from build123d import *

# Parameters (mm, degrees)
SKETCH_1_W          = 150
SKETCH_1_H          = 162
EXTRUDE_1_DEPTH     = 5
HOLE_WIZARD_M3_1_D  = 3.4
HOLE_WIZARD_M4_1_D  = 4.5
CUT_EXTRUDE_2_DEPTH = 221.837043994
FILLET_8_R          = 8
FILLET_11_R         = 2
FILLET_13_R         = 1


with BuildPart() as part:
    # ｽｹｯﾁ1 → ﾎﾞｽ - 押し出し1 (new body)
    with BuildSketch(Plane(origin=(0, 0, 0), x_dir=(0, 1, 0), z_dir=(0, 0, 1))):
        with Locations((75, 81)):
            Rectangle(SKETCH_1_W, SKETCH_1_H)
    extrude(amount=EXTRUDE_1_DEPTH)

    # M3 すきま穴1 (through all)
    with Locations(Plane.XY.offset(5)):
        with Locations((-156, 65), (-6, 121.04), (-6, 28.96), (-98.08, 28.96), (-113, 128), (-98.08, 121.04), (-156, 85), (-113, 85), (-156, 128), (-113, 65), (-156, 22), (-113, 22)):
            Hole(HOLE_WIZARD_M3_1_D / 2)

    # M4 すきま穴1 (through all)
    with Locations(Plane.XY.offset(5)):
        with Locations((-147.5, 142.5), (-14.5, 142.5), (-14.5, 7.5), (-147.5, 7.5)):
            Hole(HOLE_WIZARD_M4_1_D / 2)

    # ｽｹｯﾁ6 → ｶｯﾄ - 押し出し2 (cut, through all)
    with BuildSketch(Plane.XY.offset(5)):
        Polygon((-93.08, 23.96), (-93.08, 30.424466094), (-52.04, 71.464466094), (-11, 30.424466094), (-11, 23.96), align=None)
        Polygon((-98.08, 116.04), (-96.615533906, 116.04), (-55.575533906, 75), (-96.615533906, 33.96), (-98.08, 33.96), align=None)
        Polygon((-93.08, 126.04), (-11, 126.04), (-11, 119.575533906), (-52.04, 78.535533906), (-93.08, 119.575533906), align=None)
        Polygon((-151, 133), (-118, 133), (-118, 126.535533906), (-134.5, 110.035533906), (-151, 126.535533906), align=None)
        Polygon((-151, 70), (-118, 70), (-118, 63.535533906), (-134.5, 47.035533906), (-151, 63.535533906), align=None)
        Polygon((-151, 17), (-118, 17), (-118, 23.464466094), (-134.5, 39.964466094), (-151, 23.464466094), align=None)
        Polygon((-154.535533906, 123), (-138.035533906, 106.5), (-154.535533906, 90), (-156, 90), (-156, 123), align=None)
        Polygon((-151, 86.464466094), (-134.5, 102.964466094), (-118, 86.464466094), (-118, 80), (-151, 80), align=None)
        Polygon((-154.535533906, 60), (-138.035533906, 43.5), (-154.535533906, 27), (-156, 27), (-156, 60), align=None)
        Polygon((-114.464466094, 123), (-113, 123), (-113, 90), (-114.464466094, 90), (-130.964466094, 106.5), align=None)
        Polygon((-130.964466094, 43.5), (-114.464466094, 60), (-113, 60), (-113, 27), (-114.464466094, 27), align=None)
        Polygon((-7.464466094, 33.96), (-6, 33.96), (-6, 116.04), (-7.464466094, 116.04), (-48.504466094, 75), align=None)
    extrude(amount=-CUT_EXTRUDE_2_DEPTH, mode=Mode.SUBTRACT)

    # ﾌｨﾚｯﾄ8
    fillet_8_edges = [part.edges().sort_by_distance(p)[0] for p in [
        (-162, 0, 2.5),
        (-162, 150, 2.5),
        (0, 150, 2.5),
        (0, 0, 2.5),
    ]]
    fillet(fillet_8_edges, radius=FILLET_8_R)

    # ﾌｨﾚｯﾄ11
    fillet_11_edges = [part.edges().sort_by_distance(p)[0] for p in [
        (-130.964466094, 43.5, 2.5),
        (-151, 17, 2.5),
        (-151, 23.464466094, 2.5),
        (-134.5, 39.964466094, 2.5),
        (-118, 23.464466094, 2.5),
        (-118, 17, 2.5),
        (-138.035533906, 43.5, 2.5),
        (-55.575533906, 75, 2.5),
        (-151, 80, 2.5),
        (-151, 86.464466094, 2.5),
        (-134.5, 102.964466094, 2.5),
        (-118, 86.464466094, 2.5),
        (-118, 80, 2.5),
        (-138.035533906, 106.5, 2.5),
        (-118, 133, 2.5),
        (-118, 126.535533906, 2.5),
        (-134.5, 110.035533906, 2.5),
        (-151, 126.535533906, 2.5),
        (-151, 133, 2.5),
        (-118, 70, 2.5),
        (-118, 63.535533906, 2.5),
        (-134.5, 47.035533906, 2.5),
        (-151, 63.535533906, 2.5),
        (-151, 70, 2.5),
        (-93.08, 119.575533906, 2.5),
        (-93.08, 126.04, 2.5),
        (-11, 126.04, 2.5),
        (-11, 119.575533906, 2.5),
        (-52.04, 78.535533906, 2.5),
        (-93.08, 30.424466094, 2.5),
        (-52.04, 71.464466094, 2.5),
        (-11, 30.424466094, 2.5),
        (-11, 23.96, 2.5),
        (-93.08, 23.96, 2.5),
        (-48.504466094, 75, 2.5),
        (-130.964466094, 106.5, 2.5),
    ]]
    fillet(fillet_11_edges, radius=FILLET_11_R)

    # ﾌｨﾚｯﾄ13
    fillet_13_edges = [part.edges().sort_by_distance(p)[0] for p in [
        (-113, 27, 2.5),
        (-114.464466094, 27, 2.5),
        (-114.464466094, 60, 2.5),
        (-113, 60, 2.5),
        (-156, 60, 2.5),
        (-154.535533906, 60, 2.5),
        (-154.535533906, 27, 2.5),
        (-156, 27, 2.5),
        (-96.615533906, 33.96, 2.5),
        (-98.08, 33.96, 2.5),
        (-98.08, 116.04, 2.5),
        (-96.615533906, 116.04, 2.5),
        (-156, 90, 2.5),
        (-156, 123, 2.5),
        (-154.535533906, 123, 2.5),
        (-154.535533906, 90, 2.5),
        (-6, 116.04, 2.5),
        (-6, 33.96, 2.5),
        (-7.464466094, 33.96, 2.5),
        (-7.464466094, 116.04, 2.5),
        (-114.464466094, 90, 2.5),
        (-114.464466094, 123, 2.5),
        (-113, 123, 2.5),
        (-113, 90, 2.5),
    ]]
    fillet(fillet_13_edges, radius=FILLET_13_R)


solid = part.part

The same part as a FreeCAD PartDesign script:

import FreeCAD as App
import Part
import Sketcher
from FreeCAD import Vector
Q = App.Units.Quantity


def edges_at(feature, points):
    """Names of the edges that pass closest to the given points."""
    edges = feature.Shape.Edges
    near = lambda p: min(range(len(edges)), key=lambda i: edges[i].distToShape(Part.Vertex(*p))[0])
    return sorted({f"Edge{near(p) + 1}" for p in points})


def add_polygon(sketch, points):
    """Adds a closed chain of lines whose ends are joined by coincident constraints."""
    first, n = sketch.GeometryCount, len(points)
    for a, b in zip(points, points[1:] + points[:1]):
        sketch.addGeometry(Part.LineSegment(App.Vector(*a, 0), App.Vector(*b, 0)), False)
    for i in range(n):
        sketch.addConstraint(Sketcher.Constraint("Coincident", first + i, 2, first + (i + 1) % n, 1))

doc = App.newDocument("Part")
body = doc.addObject("PartDesign::Body", "Body")

# Sketch on XY plane
sketch1 = body.newObject("Sketcher::SketchObject", "Sketch")
sketch1.AttachmentSupport = (doc.getObject("XY_Plane"), [""])
sketch1.MapMode = "FlatFace"
add_polygon(sketch1, [(-162, 0), (0, 0), (0, 150), (-162, 150)])  # lines 0-3
sketch1.addConstraint([
    Sketcher.Constraint("Horizontal", 0),
    Sketcher.Constraint("Vertical", 1),
    Sketcher.Constraint("Horizontal", 2),
    Sketcher.Constraint("Vertical", 3),
    Sketcher.Constraint("Coincident", 0, 2, -1, 1),
    Sketcher.Constraint("DistanceX", 0, 1, 0, 2, Q("162 mm")),
    Sketcher.Constraint("DistanceY", 1, 1, 1, 2, Q("150 mm")),
])
pad1 = body.newObject("PartDesign::Pad", "Pad")
pad1.Profile = sketch1
pad1.Length = 5

# Sketch on XY plane
sketch2 = body.newObject("Sketcher::SketchObject", "Sketch001")
sketch2.AttachmentSupport = (doc.getObject("XY_Plane"), [""])
sketch2.MapMode = "FlatFace"
sketch2.AttachmentOffset = App.Placement(Vector(0, 0, 5), App.Rotation())
sketch2.addGeometry([
    Part.Circle(Vector(-156, 65, 0), Vector(0, 0, 1), 1.7),  # 0
    Part.Circle(Vector(-6, 121.04, 0), Vector(0, 0, 1), 1.7),  # 1
    Part.Circle(Vector(-6, 28.96, 0), Vector(0, 0, 1), 1.7),  # 2
    Part.Circle(Vector(-98.08, 28.96, 0), Vector(0, 0, 1), 1.7),  # 3
    Part.Circle(Vector(-113, 128, 0), Vector(0, 0, 1), 1.7),  # 4
    Part.Circle(Vector(-98.08, 121.04, 0), Vector(0, 0, 1), 1.7),  # 5
    Part.Circle(Vector(-156, 85, 0), Vector(0, 0, 1), 1.7),  # 6
    Part.Circle(Vector(-113, 85, 0), Vector(0, 0, 1), 1.7),  # 7
    Part.Circle(Vector(-156, 128, 0), Vector(0, 0, 1), 1.7),  # 8
    Part.Circle(Vector(-113, 65, 0), Vector(0, 0, 1), 1.7),  # 9
    Part.Circle(Vector(-156, 22, 0), Vector(0, 0, 1), 1.7),  # 10
    Part.Circle(Vector(-113, 22, 0), Vector(0, 0, 1), 1.7),  # 11
], False)
sketch2.addConstraint([
    Sketcher.Constraint("Equal", 0, 1),
    Sketcher.Constraint("Equal", 1, 2),
    Sketcher.Constraint("Equal", 2, 3),
    Sketcher.Constraint("Equal", 3, 4),
    Sketcher.Constraint("Equal", 4, 5),
    Sketcher.Constraint("Equal", 5, 6),
    Sketcher.Constraint("Equal", 6, 7),
    Sketcher.Constraint("Equal", 7, 8),
    Sketcher.Constraint("Equal", 8, 9),
    Sketcher.Constraint("Equal", 9, 10),
    Sketcher.Constraint("Equal", 10, 11),
    Sketcher.Constraint("Horizontal", 2, 3, 3, 3),
    Sketcher.Constraint("Horizontal", 1, 3, 5, 3),
    Sketcher.Constraint("Horizontal", 6, 3, 7, 3),
    Sketcher.Constraint("Horizontal", 4, 3, 8, 3),
    Sketcher.Constraint("Horizontal", 0, 3, 9, 3),
    Sketcher.Constraint("Horizontal", 10, 3, 11, 3),
    Sketcher.Constraint("Vertical", 1, 3, 2, 3),
    Sketcher.Constraint("Vertical", 3, 3, 5, 3),
    Sketcher.Constraint("Vertical", 0, 3, 6, 3),
    Sketcher.Constraint("Vertical", 4, 3, 7, 3),
    Sketcher.Constraint("Vertical", 6, 3, 8, 3),
    Sketcher.Constraint("Vertical", 7, 3, 9, 3),
    Sketcher.Constraint("Vertical", 8, 3, 10, 3),
    Sketcher.Constraint("Vertical", 9, 3, 11, 3),
    Sketcher.Constraint("Diameter", 0, Q("3.4 mm")),
    Sketcher.Constraint("DistanceX", 0, 3, -1, 1, Q("156 mm")),
    Sketcher.Constraint("DistanceY", -1, 1, 0, 3, Q("65 mm")),
    Sketcher.Constraint("DistanceX", 1, 3, -1, 1, Q("6 mm")),
    Sketcher.Constraint("DistanceX", 4, 3, -1, 1, Q("113 mm")),
    Sketcher.Constraint("DistanceY", -1, 1, 4, 3, Q("128 mm")),
    Sketcher.Constraint("DistanceY", -1, 1, 6, 3, Q("85 mm")),
    Sketcher.Constraint("DistanceY", -1, 1, 10, 3, Q("22 mm")),
    Sketcher.Constraint("DistanceY", -1, 1, 1, 3, Q("121.04 mm")),
    Sketcher.Constraint("DistanceY", -1, 1, 2, 3, Q("28.96 mm")),
    Sketcher.Constraint("DistanceX", 3, 3, -1, 1, Q("98.08 mm")),
])
doc.recompute()
hole = body.newObject("PartDesign::Hole", "Hole")
hole.Profile = sketch2
hole.ThreadType = "None"
hole.Diameter = 3.4
hole.DepthType = "ThroughAll"

# Sketch on XY plane
sketch3 = body.newObject("Sketcher::SketchObject", "Sketch002")
sketch3.AttachmentSupport = (doc.getObject("XY_Plane"), [""])
sketch3.MapMode = "FlatFace"
sketch3.AttachmentOffset = App.Placement(Vector(0, 0, 5), App.Rotation())
sketch3.addGeometry([
    Part.Circle(Vector(-147.5, 142.5, 0), Vector(0, 0, 1), 2.25),
    Part.Circle(Vector(-14.5, 142.5, 0), Vector(0, 0, 1), 2.25),
    Part.Circle(Vector(-14.5, 7.5, 0), Vector(0, 0, 1), 2.25),
    Part.Circle(Vector(-147.5, 7.5, 0), Vector(0, 0, 1), 2.25),
], False)
sketch3.addConstraint([
    Sketcher.Constraint("Equal", 0, 1),
    Sketcher.Constraint("Equal", 1, 2),
    Sketcher.Constraint("Equal", 2, 3),
    Sketcher.Constraint("Horizontal", 0, 3, 1, 3),
    Sketcher.Constraint("Horizontal", 2, 3, 3, 3),
    Sketcher.Constraint("Vertical", 1, 3, 2, 3),
    Sketcher.Constraint("Vertical", 0, 3, 3, 3),
    Sketcher.Constraint("Diameter", 0, Q("4.5 mm")),
    Sketcher.Constraint("DistanceX", 0, 3, 1, 3, Q("133 mm")),
    Sketcher.Constraint("DistanceY", 2, 3, 1, 3, Q("135 mm")),
    Sketcher.Constraint("DistanceX", 0, 3, -1, 1, Q("147.5 mm")),
    Sketcher.Constraint("DistanceY", -1, 1, 0, 3, Q("142.5 mm")),
])
doc.recompute()
hole2 = body.newObject("PartDesign::Hole", "Hole001")
hole2.Profile = sketch3
hole2.ThreadType = "None"
hole2.Diameter = 4.5
hole2.DepthType = "ThroughAll"

# Sketch on XY plane
sketch4 = body.newObject("Sketcher::SketchObject", "Sketch003")
sketch4.AttachmentSupport = (doc.getObject("XY_Plane"), [""])
sketch4.MapMode = "FlatFace"
sketch4.AttachmentOffset = App.Placement(Vector(0, 0, 5), App.Rotation())
add_polygon(sketch4, [(-93.08, 30.424466), (-93.08, 23.96), (-11, 23.96), (-11, 30.424466), (-52.04, 71.464466)])  # lines 0-4
add_polygon(sketch4, [(-96.615534, 116.04), (-98.08, 116.04), (-98.08, 33.96), (-96.615534, 33.96), (-55.575534, 75)])  # lines 5-9
add_polygon(sketch4, [(-11, 126.04), (-93.08, 126.04), (-93.08, 119.575534), (-52.04, 78.535534), (-11, 119.575534)])  # lines 10-14
add_polygon(sketch4, [(-118, 133), (-151, 133), (-151, 126.535534), (-134.5, 110.035534), (-118, 126.535534)])  # lines 15-19
add_polygon(sketch4, [(-118, 70), (-151, 70), (-151, 63.535534), (-134.5, 47.035534), (-118, 63.535534)])  # lines 20-24
add_polygon(sketch4, [(-151, 17), (-118, 17), (-118, 23.464466), (-134.5, 39.964466), (-151, 23.464466)])  # lines 25-29
add_polygon(sketch4, [(-138.035534, 106.5), (-154.535534, 123), (-156, 123), (-156, 90), (-154.535534, 90)])  # lines 30-34
add_polygon(sketch4, [(-134.5, 102.964466), (-151, 86.464466), (-151, 80), (-118, 80), (-118, 86.464466)])  # lines 35-39
add_polygon(sketch4, [(-138.035534, 43.5), (-154.535534, 60), (-156, 60), (-156, 27), (-154.535534, 27)])  # lines 40-44
add_polygon(sketch4, [(-113, 123), (-114.464466, 123), (-130.964466, 106.5), (-114.464466, 90), (-113, 90)])  # lines 45-49
add_polygon(sketch4, [(-114.464466, 60), (-130.964466, 43.5), (-114.464466, 27), (-113, 27), (-113, 60)])  # lines 50-54
add_polygon(sketch4, [(-7.464466, 33.96), (-6, 33.96), (-6, 116.04), (-7.464466, 116.04), (-48.504466, 75)])  # lines 55-59
sketch4.addConstraint([
    Sketcher.Constraint("Vertical", 0),
    Sketcher.Constraint("Horizontal", 1),
    Sketcher.Constraint("Vertical", 2),
    Sketcher.Constraint("Horizontal", 5),
    Sketcher.Constraint("Vertical", 6),
    Sketcher.Constraint("Horizontal", 7),
    Sketcher.Constraint("Horizontal", 10),
    Sketcher.Constraint("Vertical", 11),
    Sketcher.Constraint("Vertical", 14),
    Sketcher.Constraint("Horizontal", 15),
    Sketcher.Constraint("Vertical", 16),
    Sketcher.Constraint("Vertical", 19),
    Sketcher.Constraint("Horizontal", 20),
    Sketcher.Constraint("Vertical", 21),
    Sketcher.Constraint("Vertical", 24),
    Sketcher.Constraint("Horizontal", 25),
    Sketcher.Constraint("Vertical", 26),
    Sketcher.Constraint("Vertical", 29),
    Sketcher.Constraint("Horizontal", 31),
    Sketcher.Constraint("Vertical", 32),
    Sketcher.Constraint("Horizontal", 33),
    Sketcher.Constraint("Vertical", 36),
    Sketcher.Constraint("Horizontal", 37),
    Sketcher.Constraint("Vertical", 38),
    Sketcher.Constraint("Horizontal", 41),
    Sketcher.Constraint("Vertical", 42),
    Sketcher.Constraint("Horizontal", 43),
    Sketcher.Constraint("Horizontal", 45),
    Sketcher.Constraint("Horizontal", 48),
    Sketcher.Constraint("Vertical", 49),
    Sketcher.Constraint("Horizontal", 52),
    Sketcher.Constraint("Vertical", 53),
    Sketcher.Constraint("Horizontal", 54),
    Sketcher.Constraint("Horizontal", 55),
    Sketcher.Constraint("Vertical", 56),
    Sketcher.Constraint("Horizontal", 57),
    Sketcher.Constraint("Perpendicular", 3, 4),
    Sketcher.Constraint("Parallel", 4, 8),
    Sketcher.Constraint("Perpendicular", 8, 9),
    Sketcher.Constraint("Parallel", 9, 12),
    Sketcher.Constraint("Perpendicular", 12, 13),
    Sketcher.Constraint("Perpendicular", 13, 17),
    Sketcher.Constraint("Perpendicular", 17, 18),
    Sketcher.Constraint("Perpendicular", 18, 22),
    Sketcher.Constraint("Perpendicular", 22, 23),
    Sketcher.Constraint("Perpendicular", 23, 27),
    Sketcher.Constraint("Perpendicular", 27, 28),
    Sketcher.Constraint("Perpendicular", 28, 30),
    Sketcher.Constraint("Perpendicular", 30, 34),
    Sketcher.Constraint("Parallel", 34, 35),
    Sketcher.Constraint("Perpendicular", 35, 39),
    Sketcher.Constraint("Parallel", 39, 40),
    Sketcher.Constraint("Perpendicular", 40, 44),
    Sketcher.Constraint("Parallel", 44, 46),
    Sketcher.Constraint("Perpendicular", 46, 47),
    Sketcher.Constraint("Perpendicular", 47, 50),
    Sketcher.Constraint("Perpendicular", 50, 51),
    Sketcher.Constraint("Perpendicular", 51, 58),
    Sketcher.Constraint("Perpendicular", 58, 59),
    Sketcher.Constraint("Horizontal", 2, 2, 4, 2),
    Sketcher.Constraint("Horizontal", 11, 2, 13, 2),
    Sketcher.Constraint("Horizontal", 16, 2, 18, 2),
    Sketcher.Constraint("Horizontal", 21, 2, 23, 2),
    Sketcher.Constraint("Horizontal", 26, 2, 28, 2),
    Sketcher.Constraint("Horizontal", 35, 2, 38, 2),
    Sketcher.Constraint("Horizontal", 31, 2, 45, 2),
    Sketcher.Constraint("Horizontal", 34, 2, 46, 2),
    Sketcher.Constraint("Horizontal", 33, 2, 47, 2),
    Sketcher.Constraint("Horizontal", 44, 2, 50, 2),
    Sketcher.Constraint("Horizontal", 43, 2, 51, 2),
    Sketcher.Constraint("Horizontal", 41, 2, 53, 2),
    Sketcher.Constraint("Horizontal", 7, 2, 55, 2),
    Sketcher.Constraint("Horizontal", 9, 2, 56, 2),
    Sketcher.Constraint("Horizontal", 8, 2, 58, 2),
    Sketcher.Constraint("Vertical", 7, 2, 9, 2),
    Sketcher.Constraint("Vertical", 4, 2, 10, 2),
    Sketcher.Constraint("Vertical", 3, 2, 12, 2),
    Sketcher.Constraint("Vertical", 2, 2, 13, 2),
    Sketcher.Constraint("Vertical", 16, 2, 20, 2),
    Sketcher.Constraint("Vertical", 17, 2, 22, 2),
    Sketcher.Constraint("Vertical", 24, 2, 25, 2),
    Sketcher.Constraint("Vertical", 22, 2, 27, 2),
    Sketcher.Constraint("Vertical", 30, 2, 33, 2),
    Sketcher.Constraint("Vertical", 29, 2, 35, 2),
    Sketcher.Constraint("Vertical", 26, 2, 37, 2),
    Sketcher.Constraint("Vertical", 33, 2, 40, 2),
    Sketcher.Constraint("Vertical", 32, 2, 41, 2),
    Sketcher.Constraint("Vertical", 40, 2, 43, 2),
    Sketcher.Constraint("Vertical", 34, 2, 44, 2),
    Sketcher.Constraint("Vertical", 46, 2, 50, 2),
    Sketcher.Constraint("Vertical", 49, 2, 52, 2),
    Sketcher.Constraint("Equal", 7, 31),
    Sketcher.Constraint("Equal", 43, 45),
    Sketcher.Constraint("Equal", 54, 55),
    Sketcher.Constraint("Equal", 10, 6),
    Sketcher.Constraint("Equal", 2, 11),
    Sketcher.Constraint("Equal", 14, 16),
    Sketcher.Constraint("Equal", 19, 21),
    Sketcher.Constraint("Equal", 24, 26),
    Sketcher.Constraint("Equal", 37, 32),
    Sketcher.Constraint("Equal", 29, 36),
    Sketcher.Constraint("DistanceX", 15, 2, 15, 1, Q("33 mm")),
    Sketcher.Constraint("DistanceX", 1, 2, -1, 1, Q("11 mm")),
    Sketcher.Constraint("DistanceY", -1, 1, 8, 2, Q("75 mm")),
    Sketcher.Constraint("DistanceX", 15, 2, -1, 1, Q("151 mm")),
    Sketcher.Constraint("DistanceY", -1, 1, 15, 2, Q("133 mm")),
    Sketcher.Constraint("DistanceY", -1, 1, 20, 2, Q("70 mm")),
    Sketcher.Constraint("DistanceY", -1, 1, 25, 2, Q("17 mm")),
    Sketcher.Constraint("DistanceY", -1, 1, 30, 2, Q("123 mm")),
    Sketcher.Constraint("DistanceX", 31, 2, -1, 1, Q("156 mm")),
    Sketcher.Constraint("DistanceY", -1, 1, 36, 2, Q("80 mm")),
    Sketcher.Constraint("DistanceY", -1, 1, 40, 2, Q("60 mm")),
    Sketcher.Constraint("DistanceX", 48, 2, -1, 1, Q("113 mm")),
    Sketcher.Constraint("DistanceX", 55, 2, -1, 1, Q("6 mm")),
    Sketcher.Constraint("DistanceX", 5, 2, 4, 2, Q("5 mm")),
    Sketcher.Constraint("DistanceY", 0, 2, 6, 2, Q("10 mm")),
    Sketcher.Constraint("DistanceY", 9, 2, 10, 2, Q("10 mm")),
    Sketcher.Constraint("DistanceX", 1, 1, 1, 2, Q("82.08 mm")),
    Sketcher.Constraint("DistanceX", 5, 2, 5, 1, Q("1.464466 mm")),
    Sketcher.Constraint("DistanceY", 0, 2, 0, 1, Q("6.464466 mm")),
])
pocket1 = body.newObject("PartDesign::Pocket", "Pocket")
pocket1.Profile = sketch4
pocket1.Type = "ThroughAll"
doc.recompute()

fillet = body.newObject("PartDesign::Fillet", "Fillet")
fillet.Base = (pocket1, edges_at(pocket1, [
    (-162, 0, 2.5),
    (-162, 150, 2.5),
    (0, 150, 2.5),
    (0, 0, 2.5),
]))
fillet.Radius = 8
doc.recompute()

fillet2 = body.newObject("PartDesign::Fillet", "Fillet001")
fillet2.Base = (fillet, edges_at(fillet, [
    (-130.964, 43.5, 2.5),
    (-151, 17, 2.5),
    (-151, 23.464, 2.5),
    (-134.5, 39.964, 2.5),
    (-118, 23.464, 2.5),
    (-118, 17, 2.5),
    (-138.036, 43.5, 2.5),
    (-55.576, 75, 2.5),
    (-151, 80, 2.5),
    (-151, 86.464, 2.5),
    (-134.5, 102.964, 2.5),
    (-118, 86.464, 2.5),
    (-118, 80, 2.5),
    (-138.036, 106.5, 2.5),
    (-118, 133, 2.5),
    (-118, 126.536, 2.5),
    (-134.5, 110.036, 2.5),
    (-151, 126.536, 2.5),
    (-151, 133, 2.5),
    (-118, 70, 2.5),
    (-118, 63.536, 2.5),
    (-134.5, 47.036, 2.5),
    (-151, 63.536, 2.5),
    (-151, 70, 2.5),
    (-93.08, 119.576, 2.5),
    (-93.08, 126.04, 2.5),
    (-11, 126.04, 2.5),
    (-11, 119.576, 2.5),
    (-52.04, 78.536, 2.5),
    (-93.08, 30.424, 2.5),
    (-52.04, 71.464, 2.5),
    (-11, 30.424, 2.5),
    (-11, 23.96, 2.5),
    (-93.08, 23.96, 2.5),
    (-48.504, 75, 2.5),
    (-130.964, 106.5, 2.5),
]))
fillet2.Radius = 2
doc.recompute()

fillet3 = body.newObject("PartDesign::Fillet", "Fillet002")
fillet3.Base = (fillet2, edges_at(fillet2, [
    (-113, 27, 2.5),
    (-114.464, 27, 2.5),
    (-114.464, 60, 2.5),
    (-113, 60, 2.5),
    (-156, 60, 2.5),
    (-154.536, 60, 2.5),
    (-154.536, 27, 2.5),
    (-156, 27, 2.5),
    (-96.616, 33.96, 2.5),
    (-98.08, 33.96, 2.5),
    (-98.08, 116.04, 2.5),
    (-96.616, 116.04, 2.5),
    (-156, 90, 2.5),
    (-156, 123, 2.5),
    (-154.536, 123, 2.5),
    (-154.536, 90, 2.5),
    (-6, 116.04, 2.5),
    (-6, 33.96, 2.5),
    (-7.464, 33.96, 2.5),
    (-7.464, 116.04, 2.5),
    (-114.464, 90, 2.5),
    (-114.464, 123, 2.5),
    (-113, 123, 2.5),
    (-113, 90, 2.5),
]))
fillet3.Radius = 1

doc.recompute()
